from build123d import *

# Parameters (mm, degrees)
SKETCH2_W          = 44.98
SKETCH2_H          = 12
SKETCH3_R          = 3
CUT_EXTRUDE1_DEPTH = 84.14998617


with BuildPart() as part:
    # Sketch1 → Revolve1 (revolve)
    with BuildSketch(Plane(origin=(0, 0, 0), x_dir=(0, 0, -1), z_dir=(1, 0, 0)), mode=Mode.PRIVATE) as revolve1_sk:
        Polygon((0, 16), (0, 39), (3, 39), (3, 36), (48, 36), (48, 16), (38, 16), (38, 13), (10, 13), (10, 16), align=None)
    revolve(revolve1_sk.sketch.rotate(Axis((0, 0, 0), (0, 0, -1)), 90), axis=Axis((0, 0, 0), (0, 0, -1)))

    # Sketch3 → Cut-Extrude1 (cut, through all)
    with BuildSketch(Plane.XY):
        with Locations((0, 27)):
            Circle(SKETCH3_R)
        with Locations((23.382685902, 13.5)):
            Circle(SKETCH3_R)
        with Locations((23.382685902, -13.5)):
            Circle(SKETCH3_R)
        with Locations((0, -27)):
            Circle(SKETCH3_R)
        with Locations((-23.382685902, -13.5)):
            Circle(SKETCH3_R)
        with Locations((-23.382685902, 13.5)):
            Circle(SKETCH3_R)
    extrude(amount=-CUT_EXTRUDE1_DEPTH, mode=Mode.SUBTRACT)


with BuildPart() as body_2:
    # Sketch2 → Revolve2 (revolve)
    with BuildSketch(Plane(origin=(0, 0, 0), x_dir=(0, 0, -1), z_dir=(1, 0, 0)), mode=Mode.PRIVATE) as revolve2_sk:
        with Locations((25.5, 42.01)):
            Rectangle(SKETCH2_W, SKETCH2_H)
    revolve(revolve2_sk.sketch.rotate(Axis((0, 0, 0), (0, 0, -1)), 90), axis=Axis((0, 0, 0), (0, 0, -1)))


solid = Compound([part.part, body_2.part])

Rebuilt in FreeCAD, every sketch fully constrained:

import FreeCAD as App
import Part
import Sketcher

V = App.Vector


def add_polygon(sketch, points):
    """Adds a closed chain of lines whose ends are joined by coincident constraints."""
    first, n = sketch.GeometryCount, len(points)
    for a, b in zip(points, points[1:] + points[:1]):
        sketch.addGeometry(Part.LineSegment(App.Vector(*a, 0), App.Vector(*b, 0)), False)
    for i in range(n):
        sketch.addConstraint(Sketcher.Constraint("Coincident", first + i, 2, first + (i + 1) % n, 1))

doc = App.newDocument("Part")
body = doc.addObject("PartDesign::Body", "Body")

sketch1 = body.newObject("Sketcher::SketchObject", "Sketch")
sketch1.AttachmentSupport = (doc.getObject("YZ_Plane"), [""])
sketch1.MapMode = "FlatFace"
add_polygon(sketch1, [(39, 0), (16, 0), (16, -10), (13, -10), (13, -38), (16, -38), (16, -48), (36, -48), (36, -3), (39, -3)])
sketch1.addConstraint([
    Sketcher.Constraint("Horizontal", 0),
    Sketcher.Constraint("Vertical", 1),
    Sketcher.Constraint("Horizontal", 2),
    Sketcher.Constraint("Vertical", 3),
    Sketcher.Constraint("Horizontal", 4),
    Sketcher.Constraint("Vertical", 5),
    Sketcher.Constraint("Horizontal", 6),
    Sketcher.Constraint("Vertical", 7),
    Sketcher.Constraint("Horizontal", 8),
    Sketcher.Constraint("Vertical", 9),
    Sketcher.Constraint("PointOnObject", 0, 2, -1),
    Sketcher.Constraint("Vertical", 1, 2, 4, 2),
    Sketcher.Constraint("Equal", 4, 8),
    Sketcher.Constraint("Equal", 1, 5),
    Sketcher.Constraint("Equal", 8, 9),
    Sketcher.Constraint("DistanceX", 0, 2, 0, 1, 23.0),
    Sketcher.Constraint("DistanceX", 2, 2, 2, 1, 3.0),
    Sketcher.Constraint("DistanceY", 1, 2, 1, 1, 10.0),
    Sketcher.Constraint("DistanceY", 3, 2, 3, 1, 28.0),
    Sketcher.Constraint("DistanceX", -1, 1, 0, 2, 16.0),
])
revolution = body.newObject("PartDesign::Revolution", "Revolution")
revolution.Profile = sketch1
revolution.ReferenceAxis = (sketch1, ["V_Axis"])
revolution.Angle = 360

sketch2 = body.newObject("Sketcher::SketchObject", "Sketch001")
sketch2.AttachmentSupport = (doc.getObject("XY_Plane"), [""])
sketch2.MapMode = "FlatFace"
sketch2.addGeometry([
    Part.Circle(V(0, 27, 0), V(0, 0, 1), 3),
    Part.Circle(V(23.382686, 13.5, 0), V(0, 0, 1), 3),
    Part.Circle(V(23.382686, -13.5, 0), V(0, 0, 1), 3),
    Part.Circle(V(0, -27, 0), V(0, 0, 1), 3),
    Part.Circle(V(-23.382686, -13.5, 0), V(0, 0, 1), 3),
    Part.Circle(V(-23.382686, 13.5, 0), V(0, 0, 1), 3),
], False)
sketch2.addConstraint([
    Sketcher.Constraint("Equal", 0, 1),
    Sketcher.Constraint("Equal", 1, 2),
    Sketcher.Constraint("Equal", 2, 3),
    Sketcher.Constraint("Equal", 3, 4),
    Sketcher.Constraint("Equal", 4, 5),
    Sketcher.Constraint("Symmetric", 0, 3, 3, 3, -1, 1),
    Sketcher.Constraint("Symmetric", 1, 3, 4, 3, -1, 1),
    Sketcher.Constraint("Symmetric", 2, 3, 5, 3, -1, 1),
    Sketcher.Constraint("Symmetric", 2, 3, 4, 3, -2),
    Sketcher.Constraint("PointOnObject", 0, 3, -2),
    Sketcher.Constraint("Diameter", 0, 6.0),
    Sketcher.Constraint("DistanceY", -1, 1, 0, 3, 27.0),
    Sketcher.Constraint("DistanceY", 2, 3, 1, 3, 27.0),
    Sketcher.Constraint("DistanceX", 4, 3, 2, 3, 46.765372),
])
pocket1 = body.newObject("PartDesign::Pocket", "Pocket")
pocket1.Profile = sketch2
pocket1.Type = "ThroughAll"
body2 = doc.addObject("PartDesign::Body", "Body001")

sketch3 = body2.newObject("Sketcher::SketchObject", "Sketch002")
sketch3.AttachmentSupport = (doc.getObject("YZ_Plane001"), [""])
sketch3.MapMode = "FlatFace"
add_polygon(sketch3, [(48.01, -3.01), (36.01, -3.01), (36.01, -47.99), (48.01, -47.99)])
sketch3.addConstraint([
    Sketcher.Constraint("Horizontal", 0),
    Sketcher.Constraint("Vertical", 1),
    Sketcher.Constraint("Horizontal", 2),
    Sketcher.Constraint("Vertical", 3),
    Sketcher.Constraint("DistanceX", 0, 2, 0, 1, 12.0),
    Sketcher.Constraint("DistanceY", 1, 2, 1, 1, 44.98),
    Sketcher.Constraint("DistanceX", -1, 1, 0, 2, 36.01),
    Sketcher.Constraint("DistanceY", 0, 2, -1, 1, 3.01),
])
revolution2 = body2.newObject("PartDesign::Revolution", "Revolution001")
revolution2.Profile = sketch3
revolution2.ReferenceAxis = (sketch3, ["V_Axis"])
revolution2.Angle = 360

doc.recompute()
